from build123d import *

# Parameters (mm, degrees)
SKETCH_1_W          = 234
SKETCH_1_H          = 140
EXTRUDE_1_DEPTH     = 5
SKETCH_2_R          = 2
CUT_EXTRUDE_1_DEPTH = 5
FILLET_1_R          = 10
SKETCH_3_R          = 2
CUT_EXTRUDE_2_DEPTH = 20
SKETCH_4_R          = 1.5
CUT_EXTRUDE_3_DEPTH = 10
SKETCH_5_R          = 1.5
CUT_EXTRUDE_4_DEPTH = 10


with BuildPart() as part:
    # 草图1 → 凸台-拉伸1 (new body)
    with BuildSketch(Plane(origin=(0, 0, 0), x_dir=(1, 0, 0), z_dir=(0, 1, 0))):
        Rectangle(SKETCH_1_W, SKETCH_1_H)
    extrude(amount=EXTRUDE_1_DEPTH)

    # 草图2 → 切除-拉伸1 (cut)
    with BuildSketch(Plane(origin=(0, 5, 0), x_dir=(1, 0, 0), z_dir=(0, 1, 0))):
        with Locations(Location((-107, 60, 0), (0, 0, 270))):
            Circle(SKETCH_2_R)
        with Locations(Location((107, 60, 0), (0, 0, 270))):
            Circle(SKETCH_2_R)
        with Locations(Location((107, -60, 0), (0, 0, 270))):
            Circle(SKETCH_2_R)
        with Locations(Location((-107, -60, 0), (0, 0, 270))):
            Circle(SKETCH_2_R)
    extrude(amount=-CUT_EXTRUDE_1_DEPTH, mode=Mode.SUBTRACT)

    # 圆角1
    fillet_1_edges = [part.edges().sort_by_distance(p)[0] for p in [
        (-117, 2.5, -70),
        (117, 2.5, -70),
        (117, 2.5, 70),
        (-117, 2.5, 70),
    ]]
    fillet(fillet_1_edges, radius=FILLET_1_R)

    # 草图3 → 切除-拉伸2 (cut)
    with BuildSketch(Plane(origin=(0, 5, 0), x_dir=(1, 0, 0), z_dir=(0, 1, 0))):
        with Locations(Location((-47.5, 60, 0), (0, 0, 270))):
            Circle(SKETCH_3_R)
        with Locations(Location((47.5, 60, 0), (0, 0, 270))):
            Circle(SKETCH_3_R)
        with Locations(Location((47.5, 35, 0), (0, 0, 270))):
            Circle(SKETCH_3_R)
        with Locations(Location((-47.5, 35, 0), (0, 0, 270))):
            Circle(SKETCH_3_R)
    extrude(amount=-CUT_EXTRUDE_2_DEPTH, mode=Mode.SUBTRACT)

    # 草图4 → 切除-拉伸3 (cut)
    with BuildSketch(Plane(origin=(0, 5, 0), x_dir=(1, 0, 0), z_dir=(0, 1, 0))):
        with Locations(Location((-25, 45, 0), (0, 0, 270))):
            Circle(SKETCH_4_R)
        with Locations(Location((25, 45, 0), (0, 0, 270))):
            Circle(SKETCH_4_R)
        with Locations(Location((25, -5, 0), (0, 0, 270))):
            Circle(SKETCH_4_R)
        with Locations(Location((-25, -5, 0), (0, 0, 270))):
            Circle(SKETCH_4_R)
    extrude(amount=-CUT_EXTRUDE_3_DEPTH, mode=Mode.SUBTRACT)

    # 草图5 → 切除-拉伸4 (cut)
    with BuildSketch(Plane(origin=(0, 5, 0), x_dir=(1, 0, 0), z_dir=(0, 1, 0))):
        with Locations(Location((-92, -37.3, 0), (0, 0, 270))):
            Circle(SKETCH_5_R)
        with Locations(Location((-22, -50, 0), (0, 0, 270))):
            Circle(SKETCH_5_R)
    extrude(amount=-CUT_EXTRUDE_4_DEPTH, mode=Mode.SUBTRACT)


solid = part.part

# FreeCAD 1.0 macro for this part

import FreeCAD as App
import Part
import Sketcher

V = App.Vector
Q = App.Units.Quantity


def edges_at(feature, points):
    """Names of the edges that pass closest to the given points."""
    edges = feature.Shape.Edges
    near = lambda p: min(range(len(edges)), key=lambda i: edges[i].distToShape(Part.Vertex(*p))[0])
    return sorted({f"Edge{near(p) + 1}" for p in points})


def add_polygon(sketch, points):
    """Adds a closed chain of lines whose ends are joined by coincident constraints."""
    first, n = sketch.GeometryCount, len(points)
    for a, b in zip(points, points[1:] + points[:1]):
        sketch.addGeometry(Part.LineSegment(App.Vector(*a, 0), App.Vector(*b, 0)), False)
    for i in range(n):
        sketch.addConstraint(Sketcher.Constraint("Coincident", first + i, 2, first + (i + 1) % n, 1))

doc = App.newDocument("Part")
body = doc.addObject("PartDesign::Body", "Body")

sketch1 = body.newObject("Sketcher::SketchObject", "Sketch")
sketch1.AttachmentSupport = (doc.getObject("XZ_Plane"), [""])
sketch1.MapMode = "FlatFace"
add_polygon(sketch1, [(-117, -70), (-117, 70), (117, 70), (117, -70)])
sketch1.addConstraint([
    Sketcher.Constraint("Vertical", 0),
    Sketcher.Constraint("Horizontal", 1),
    Sketcher.Constraint("Vertical", 2),
    Sketcher.Constraint("Horizontal", 3),
    Sketcher.Constraint("Symmetric", 0, 2, 2, 2, -1, 1),
    Sketcher.Constraint("DistanceX", 1, 1, 1, 2, Q("234 mm")),
    Sketcher.Constraint("DistanceY", 0, 1, 0, 2, Q("140 mm")),
])
pad1 = body.newObject("PartDesign::Pad", "Pad")
pad1.Profile = sketch1
pad1.Length = 5
pad1.Reversed = True

sketch2 = body.newObject("Sketcher::SketchObject", "Sketch001")
sketch2.AttachmentSupport = (doc.getObject("XZ_Plane"), [""])
sketch2.MapMode = "FlatFace"
sketch2.AttachmentOffset = App.Placement(V(0, 0, -5), App.Rotation())
sketch2.addGeometry([
    Part.Circle(V(-107, -60, 0), V(0, 0, 1), 2),
    Part.Circle(V(107, -60, 0), V(0, 0, 1), 2),
    Part.Circle(V(107, 60, 0), V(0, 0, 1), 2),
    Part.Circle(V(-107, 60, 0), V(0, 0, 1), 2),
], False)
sketch2.addConstraint([
    Sketcher.Constraint("Equal", 0, 1),
    Sketcher.Constraint("Equal", 1, 2),
    Sketcher.Constraint("Equal", 2, 3),
    Sketcher.Constraint("Symmetric", 0, 3, 2, 3, -1, 1),
    Sketcher.Constraint("Symmetric", 1, 3, 3, 3, -1, 1),
    Sketcher.Constraint("Symmetric", 0, 3, 1, 3, -2),
    Sketcher.Constraint("Diameter", 0, Q("4 mm")),
    Sketcher.Constraint("DistanceX", 0, 3, -1, 1, Q("107 mm")),
    Sketcher.Constraint("DistanceY", 0, 3, -1, 1, Q("60 mm")),
])
pocket1 = body.newObject("PartDesign::Pocket", "Pocket")
pocket1.Profile = sketch2
pocket1.Length = 5
pocket1.Reversed = True
doc.recompute()

fillet = body.newObject("PartDesign::Fillet", "Fillet")
fillet.Base = (pocket1, edges_at(pocket1, [
    (-117, 2.5, -70),
    (117, 2.5, -70),
    (117, 2.5, 70),
    (-117, 2.5, 70),
]))
fillet.Radius = 10

sketch3 = body.newObject("Sketcher::SketchObject", "Sketch002")
sketch3.AttachmentSupport = (doc.getObject("XZ_Plane"), [""])
sketch3.MapMode = "FlatFace"
sketch3.AttachmentOffset = App.Placement(V(0, 0, -5), App.Rotation())
sketch3.addGeometry([
    Part.Circle(V(-47.5, -60, 0), V(0, 0, 1), 2),
    Part.Circle(V(47.5, -60, 0), V(0, 0, 1), 2),
    Part.Circle(V(47.5, -35, 0), V(0, 0, 1), 2),
    Part.Circle(V(-47.5, -35, 0), V(0, 0, 1), 2),
], False)
sketch3.addConstraint([
    Sketcher.Constraint("Equal", 0, 1),
    Sketcher.Constraint("Equal", 1, 2),
    Sketcher.Constraint("Equal", 2, 3),
    Sketcher.Constraint("Symmetric", 0, 3, 1, 3, -2),
    Sketcher.Constraint("Symmetric", 2, 3, 3, 3, -2),
    Sketcher.Constraint("Vertical", 1, 3, 2, 3),
    Sketcher.Constraint("Diameter", 0, Q("4 mm")),
    Sketcher.Constraint("DistanceY", 0, 3, -1, 1, Q("60 mm")),
    Sketcher.Constraint("DistanceY", 2, 3, -1, 1, Q("35 mm")),
    Sketcher.Constraint("DistanceX", 0, 3, 1, 3, Q("95 mm")),
])
pocket2 = body.newObject("PartDesign::Pocket", "Pocket001")
pocket2.Profile = sketch3
pocket2.Length = 20
pocket2.Reversed = True

sketch4 = body.newObject("Sketcher::SketchObject", "Sketch003")
sketch4.AttachmentSupport = (doc.getObject("XZ_Plane"), [""])
sketch4.MapMode = "FlatFace"
sketch4.AttachmentOffset = App.Placement(V(0, 0, -5), App.Rotation())
sketch4.addGeometry([
    Part.Circle(V(-25, -45, 0), V(0, 0, 1), 1.5),
    Part.Circle(V(25, -45, 0), V(0, 0, 1), 1.5),
    Part.Circle(V(25, 5, 0), V(0, 0, 1), 1.5),
    Part.Circle(V(-25, 5, 0), V(0, 0, 1), 1.5),
], False)
sketch4.addConstraint([
    Sketcher.Constraint("Equal", 0, 1),
    Sketcher.Constraint("Equal", 1, 2),
    Sketcher.Constraint("Equal", 2, 3),
    Sketcher.Constraint("Symmetric", 0, 3, 1, 3, -2),
    Sketcher.Constraint("Symmetric", 2, 3, 3, 3, -2),
    Sketcher.Constraint("Vertical", 1, 3, 2, 3),
    Sketcher.Constraint("Diameter", 0, Q("3 mm")),
    Sketcher.Constraint("DistanceX", 0, 3, -1, 1, Q("25 mm")),
    Sketcher.Constraint("DistanceY", 0, 3, -1, 1, Q("45 mm")),
    Sketcher.Constraint("DistanceY", -1, 1, 2, 3, Q("5 mm")),
])
pocket3 = body.newObject("PartDesign::Pocket", "Pocket002")
pocket3.Profile = sketch4
pocket3.Length = 10
pocket3.Reversed = True

sketch5 = body.newObject("Sketcher::SketchObject", "Sketch004")
sketch5.AttachmentSupport = (doc.getObject("XZ_Plane"), [""])
sketch5.MapMode = "FlatFace"
sketch5.AttachmentOffset = App.Placement(V(0, 0, -5), App.Rotation())
sketch5.addGeometry([
    Part.Circle(V(-92, 37.3, 0), V(0, 0, 1), 1.5),
    Part.Circle(V(-22, 50, 0), V(0, 0, 1), 1.5),
], False)
sketch5.addConstraint([
    Sketcher.Constraint("Equal", 0, 1),
    Sketcher.Constraint("Diameter", 0, Q("3 mm")),
    Sketcher.Constraint("DistanceX", 0, 3, -1, 1, Q("92 mm")),
    Sketcher.Constraint("DistanceX", 1, 3, -1, 1, Q("22 mm")),
    Sketcher.Constraint("DistanceY", -1, 1, 1, 3, Q("50 mm")),
    Sketcher.Constraint("DistanceY", -1, 1, 0, 3, Q("37.3 mm")),
])
pocket4 = body.newObject("PartDesign::Pocket", "Pocket003")
pocket4.Profile = sketch5
pocket4.Length = 10
pocket4.Reversed = True

doc.recompute()
